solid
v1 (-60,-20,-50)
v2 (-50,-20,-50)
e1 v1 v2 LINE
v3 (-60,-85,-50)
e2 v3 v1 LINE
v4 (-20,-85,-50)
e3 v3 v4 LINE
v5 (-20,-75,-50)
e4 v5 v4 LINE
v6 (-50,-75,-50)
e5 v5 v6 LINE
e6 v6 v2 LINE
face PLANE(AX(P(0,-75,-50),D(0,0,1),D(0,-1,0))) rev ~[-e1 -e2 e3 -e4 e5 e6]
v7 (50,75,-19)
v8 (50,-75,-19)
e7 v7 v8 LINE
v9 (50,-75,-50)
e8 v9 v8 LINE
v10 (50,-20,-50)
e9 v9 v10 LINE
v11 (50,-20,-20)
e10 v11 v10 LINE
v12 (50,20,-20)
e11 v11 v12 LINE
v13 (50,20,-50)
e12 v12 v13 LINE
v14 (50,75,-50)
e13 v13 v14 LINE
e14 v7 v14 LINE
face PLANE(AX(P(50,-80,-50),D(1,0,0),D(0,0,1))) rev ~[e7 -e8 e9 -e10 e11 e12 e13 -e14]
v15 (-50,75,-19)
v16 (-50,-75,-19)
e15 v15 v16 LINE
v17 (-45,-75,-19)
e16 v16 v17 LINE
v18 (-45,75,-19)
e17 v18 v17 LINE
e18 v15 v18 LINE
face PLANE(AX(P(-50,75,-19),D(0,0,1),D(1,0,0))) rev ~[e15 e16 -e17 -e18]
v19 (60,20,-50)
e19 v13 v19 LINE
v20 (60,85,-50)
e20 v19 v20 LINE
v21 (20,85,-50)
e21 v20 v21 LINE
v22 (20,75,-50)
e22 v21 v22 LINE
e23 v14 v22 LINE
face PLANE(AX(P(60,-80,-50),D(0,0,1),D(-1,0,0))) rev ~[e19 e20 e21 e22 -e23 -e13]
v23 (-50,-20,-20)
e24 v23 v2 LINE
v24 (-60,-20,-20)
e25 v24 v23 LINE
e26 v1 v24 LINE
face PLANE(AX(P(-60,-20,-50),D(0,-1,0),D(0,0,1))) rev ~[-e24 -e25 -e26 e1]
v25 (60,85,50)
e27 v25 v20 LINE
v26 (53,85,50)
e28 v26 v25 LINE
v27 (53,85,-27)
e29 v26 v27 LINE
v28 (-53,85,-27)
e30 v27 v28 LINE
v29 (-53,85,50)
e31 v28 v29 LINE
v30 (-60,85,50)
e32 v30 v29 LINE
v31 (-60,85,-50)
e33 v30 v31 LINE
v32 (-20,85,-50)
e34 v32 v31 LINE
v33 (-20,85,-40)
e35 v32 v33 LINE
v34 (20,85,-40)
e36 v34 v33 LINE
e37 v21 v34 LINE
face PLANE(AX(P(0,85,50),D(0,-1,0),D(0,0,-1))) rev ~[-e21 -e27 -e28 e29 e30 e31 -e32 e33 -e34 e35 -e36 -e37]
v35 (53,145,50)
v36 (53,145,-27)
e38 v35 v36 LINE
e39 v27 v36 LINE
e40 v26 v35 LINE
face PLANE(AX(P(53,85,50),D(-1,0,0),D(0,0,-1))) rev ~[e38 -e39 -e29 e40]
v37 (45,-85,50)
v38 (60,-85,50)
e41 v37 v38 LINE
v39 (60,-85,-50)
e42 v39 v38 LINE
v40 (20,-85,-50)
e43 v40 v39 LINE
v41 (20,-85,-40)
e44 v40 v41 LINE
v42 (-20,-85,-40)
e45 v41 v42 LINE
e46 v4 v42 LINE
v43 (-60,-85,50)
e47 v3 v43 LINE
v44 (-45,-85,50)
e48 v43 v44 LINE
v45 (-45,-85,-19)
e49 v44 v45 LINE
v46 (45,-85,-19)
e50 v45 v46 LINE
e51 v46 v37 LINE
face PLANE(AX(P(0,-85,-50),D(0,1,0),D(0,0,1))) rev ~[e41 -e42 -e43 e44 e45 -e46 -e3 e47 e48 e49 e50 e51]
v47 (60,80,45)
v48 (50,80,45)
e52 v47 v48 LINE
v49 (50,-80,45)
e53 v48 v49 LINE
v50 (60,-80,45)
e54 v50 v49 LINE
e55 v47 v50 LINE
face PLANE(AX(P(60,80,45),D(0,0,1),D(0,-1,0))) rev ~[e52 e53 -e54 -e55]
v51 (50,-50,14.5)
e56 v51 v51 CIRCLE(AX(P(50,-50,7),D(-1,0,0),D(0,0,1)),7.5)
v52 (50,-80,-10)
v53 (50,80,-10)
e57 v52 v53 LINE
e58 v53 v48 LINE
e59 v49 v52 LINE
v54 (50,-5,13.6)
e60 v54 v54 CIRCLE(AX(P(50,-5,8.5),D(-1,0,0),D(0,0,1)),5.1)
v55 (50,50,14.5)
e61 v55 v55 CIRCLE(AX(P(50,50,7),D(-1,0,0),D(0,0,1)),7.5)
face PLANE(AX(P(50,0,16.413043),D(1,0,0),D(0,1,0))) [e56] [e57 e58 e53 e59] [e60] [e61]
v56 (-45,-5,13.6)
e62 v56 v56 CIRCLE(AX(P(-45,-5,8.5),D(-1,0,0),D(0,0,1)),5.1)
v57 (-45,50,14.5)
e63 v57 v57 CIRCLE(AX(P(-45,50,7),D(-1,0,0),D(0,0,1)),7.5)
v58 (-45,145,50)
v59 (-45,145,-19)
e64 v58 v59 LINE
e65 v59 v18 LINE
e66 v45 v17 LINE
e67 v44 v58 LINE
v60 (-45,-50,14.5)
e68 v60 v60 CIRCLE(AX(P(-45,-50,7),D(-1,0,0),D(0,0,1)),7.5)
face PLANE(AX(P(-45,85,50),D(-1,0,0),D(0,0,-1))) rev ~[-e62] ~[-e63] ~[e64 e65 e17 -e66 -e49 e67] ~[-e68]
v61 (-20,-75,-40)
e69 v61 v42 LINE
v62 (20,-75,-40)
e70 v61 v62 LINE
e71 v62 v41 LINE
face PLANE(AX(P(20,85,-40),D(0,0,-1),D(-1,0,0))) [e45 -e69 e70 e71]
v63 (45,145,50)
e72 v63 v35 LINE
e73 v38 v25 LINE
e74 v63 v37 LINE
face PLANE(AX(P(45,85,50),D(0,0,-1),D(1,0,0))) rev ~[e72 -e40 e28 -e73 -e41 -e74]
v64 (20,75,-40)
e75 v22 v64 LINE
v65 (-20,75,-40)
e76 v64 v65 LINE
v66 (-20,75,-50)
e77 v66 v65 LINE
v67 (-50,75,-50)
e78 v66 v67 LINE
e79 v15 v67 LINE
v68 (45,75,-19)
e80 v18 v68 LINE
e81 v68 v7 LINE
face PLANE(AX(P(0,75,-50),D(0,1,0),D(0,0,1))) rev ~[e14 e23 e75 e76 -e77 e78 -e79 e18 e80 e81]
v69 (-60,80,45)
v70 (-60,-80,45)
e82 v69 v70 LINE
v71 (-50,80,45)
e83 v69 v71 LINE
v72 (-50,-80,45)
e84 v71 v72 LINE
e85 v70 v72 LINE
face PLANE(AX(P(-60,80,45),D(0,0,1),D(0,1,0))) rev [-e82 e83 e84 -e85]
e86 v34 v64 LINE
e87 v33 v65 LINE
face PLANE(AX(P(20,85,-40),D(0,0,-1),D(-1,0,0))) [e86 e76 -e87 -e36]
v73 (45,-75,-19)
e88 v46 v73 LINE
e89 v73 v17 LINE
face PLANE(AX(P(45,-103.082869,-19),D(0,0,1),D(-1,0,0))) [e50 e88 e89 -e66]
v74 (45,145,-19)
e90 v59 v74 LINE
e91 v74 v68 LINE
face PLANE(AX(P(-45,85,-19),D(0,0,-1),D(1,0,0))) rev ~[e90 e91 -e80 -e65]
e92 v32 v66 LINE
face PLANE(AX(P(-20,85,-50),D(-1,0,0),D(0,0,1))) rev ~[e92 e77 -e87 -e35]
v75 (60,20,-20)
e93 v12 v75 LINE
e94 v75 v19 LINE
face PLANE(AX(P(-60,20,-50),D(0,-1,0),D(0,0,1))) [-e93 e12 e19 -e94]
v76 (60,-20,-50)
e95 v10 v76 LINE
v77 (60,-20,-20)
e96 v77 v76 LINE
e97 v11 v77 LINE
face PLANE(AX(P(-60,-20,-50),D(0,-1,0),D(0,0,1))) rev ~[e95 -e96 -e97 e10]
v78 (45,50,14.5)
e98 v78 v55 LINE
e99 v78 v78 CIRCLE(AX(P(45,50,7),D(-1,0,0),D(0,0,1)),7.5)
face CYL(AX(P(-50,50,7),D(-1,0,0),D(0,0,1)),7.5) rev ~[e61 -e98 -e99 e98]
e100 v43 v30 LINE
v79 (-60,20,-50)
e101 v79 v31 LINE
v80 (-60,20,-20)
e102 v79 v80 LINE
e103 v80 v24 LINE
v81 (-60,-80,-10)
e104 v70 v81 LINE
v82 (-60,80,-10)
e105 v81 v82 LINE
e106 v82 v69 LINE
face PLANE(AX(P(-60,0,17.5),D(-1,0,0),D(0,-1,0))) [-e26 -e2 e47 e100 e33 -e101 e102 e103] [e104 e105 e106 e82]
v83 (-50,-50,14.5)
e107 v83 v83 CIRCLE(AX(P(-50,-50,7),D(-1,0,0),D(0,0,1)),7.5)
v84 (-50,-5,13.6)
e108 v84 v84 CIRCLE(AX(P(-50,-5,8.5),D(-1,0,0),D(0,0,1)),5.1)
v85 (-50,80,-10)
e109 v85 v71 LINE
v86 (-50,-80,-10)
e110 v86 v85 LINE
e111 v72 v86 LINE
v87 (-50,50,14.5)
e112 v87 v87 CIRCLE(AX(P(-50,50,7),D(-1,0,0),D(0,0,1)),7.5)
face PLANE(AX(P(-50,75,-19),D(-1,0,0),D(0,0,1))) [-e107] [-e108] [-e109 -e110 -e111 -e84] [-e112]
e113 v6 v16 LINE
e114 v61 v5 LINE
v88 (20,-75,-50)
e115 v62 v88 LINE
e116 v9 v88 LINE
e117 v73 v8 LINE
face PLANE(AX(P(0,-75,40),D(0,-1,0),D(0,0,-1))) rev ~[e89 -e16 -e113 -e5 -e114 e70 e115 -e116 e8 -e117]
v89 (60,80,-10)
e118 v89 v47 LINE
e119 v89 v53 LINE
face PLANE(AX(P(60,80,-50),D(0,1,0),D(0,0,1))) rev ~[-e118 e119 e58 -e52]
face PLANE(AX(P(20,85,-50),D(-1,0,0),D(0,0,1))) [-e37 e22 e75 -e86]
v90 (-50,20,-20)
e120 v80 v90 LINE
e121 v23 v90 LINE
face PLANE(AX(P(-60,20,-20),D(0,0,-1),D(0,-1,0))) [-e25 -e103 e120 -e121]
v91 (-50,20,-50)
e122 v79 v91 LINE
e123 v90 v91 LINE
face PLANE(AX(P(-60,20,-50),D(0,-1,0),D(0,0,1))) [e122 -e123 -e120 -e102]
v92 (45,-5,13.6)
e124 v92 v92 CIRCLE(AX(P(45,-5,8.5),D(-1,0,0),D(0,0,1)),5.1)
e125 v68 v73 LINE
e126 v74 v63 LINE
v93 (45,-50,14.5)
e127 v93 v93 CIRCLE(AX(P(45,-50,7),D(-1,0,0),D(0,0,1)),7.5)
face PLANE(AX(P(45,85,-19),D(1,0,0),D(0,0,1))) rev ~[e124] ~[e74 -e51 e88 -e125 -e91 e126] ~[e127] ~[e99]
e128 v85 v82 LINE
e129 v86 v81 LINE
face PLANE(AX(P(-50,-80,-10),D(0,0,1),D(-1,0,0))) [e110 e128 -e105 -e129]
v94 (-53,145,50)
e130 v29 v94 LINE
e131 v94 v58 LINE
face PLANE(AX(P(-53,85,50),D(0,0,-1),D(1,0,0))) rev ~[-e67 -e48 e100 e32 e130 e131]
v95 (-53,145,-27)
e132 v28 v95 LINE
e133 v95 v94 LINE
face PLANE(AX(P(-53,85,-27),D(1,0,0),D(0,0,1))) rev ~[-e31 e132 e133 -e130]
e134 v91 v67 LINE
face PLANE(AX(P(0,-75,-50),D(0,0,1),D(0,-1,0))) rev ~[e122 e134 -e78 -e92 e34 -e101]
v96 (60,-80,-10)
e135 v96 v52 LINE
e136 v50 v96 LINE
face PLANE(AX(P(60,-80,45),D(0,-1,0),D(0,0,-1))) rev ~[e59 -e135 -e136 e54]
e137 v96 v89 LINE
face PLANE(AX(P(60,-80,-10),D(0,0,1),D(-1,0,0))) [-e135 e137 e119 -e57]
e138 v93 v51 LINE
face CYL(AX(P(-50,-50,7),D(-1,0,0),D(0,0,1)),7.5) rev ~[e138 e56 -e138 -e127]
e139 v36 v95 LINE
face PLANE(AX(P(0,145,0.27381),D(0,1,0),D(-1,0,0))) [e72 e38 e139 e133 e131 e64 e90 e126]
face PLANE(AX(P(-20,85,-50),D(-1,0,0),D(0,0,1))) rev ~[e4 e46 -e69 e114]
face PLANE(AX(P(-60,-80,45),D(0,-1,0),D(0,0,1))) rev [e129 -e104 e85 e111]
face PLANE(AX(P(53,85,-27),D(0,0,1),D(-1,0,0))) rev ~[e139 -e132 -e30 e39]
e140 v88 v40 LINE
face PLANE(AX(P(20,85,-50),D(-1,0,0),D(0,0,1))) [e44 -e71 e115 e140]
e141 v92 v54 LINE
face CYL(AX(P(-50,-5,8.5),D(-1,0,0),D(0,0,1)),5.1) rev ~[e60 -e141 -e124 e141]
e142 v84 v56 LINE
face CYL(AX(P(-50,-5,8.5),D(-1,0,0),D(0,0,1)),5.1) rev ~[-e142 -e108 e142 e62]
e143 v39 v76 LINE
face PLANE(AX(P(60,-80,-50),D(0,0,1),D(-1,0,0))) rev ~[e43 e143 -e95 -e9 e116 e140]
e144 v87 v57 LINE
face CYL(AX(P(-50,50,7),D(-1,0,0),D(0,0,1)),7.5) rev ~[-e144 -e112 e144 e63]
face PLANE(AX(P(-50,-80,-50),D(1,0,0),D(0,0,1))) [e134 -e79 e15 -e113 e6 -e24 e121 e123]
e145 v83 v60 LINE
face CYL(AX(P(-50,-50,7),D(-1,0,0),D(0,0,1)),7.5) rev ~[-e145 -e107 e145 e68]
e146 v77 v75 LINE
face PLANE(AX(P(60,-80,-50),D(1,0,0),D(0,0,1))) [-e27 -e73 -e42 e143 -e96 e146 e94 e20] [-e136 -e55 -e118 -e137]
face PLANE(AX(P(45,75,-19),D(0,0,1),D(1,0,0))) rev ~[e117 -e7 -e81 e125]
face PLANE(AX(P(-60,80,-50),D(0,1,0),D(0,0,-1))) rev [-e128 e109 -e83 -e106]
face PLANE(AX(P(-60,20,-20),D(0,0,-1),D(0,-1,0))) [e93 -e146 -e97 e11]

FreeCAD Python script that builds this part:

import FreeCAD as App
import Part
import Sketcher
Q = App.Units.Quantity


def add_polygon(sketch, points):
    """Adds a closed chain of lines whose ends are joined by coincident constraints."""
    first, n = sketch.GeometryCount, len(points)
    for a, b in zip(points, points[1:] + points[:1]):
        sketch.addGeometry(Part.LineSegment(App.Vector(*a, 0), App.Vector(*b, 0)), False)
    for i in range(n):
        sketch.addConstraint(Sketcher.Constraint("Coincident", first + i, 2, first + (i + 1) % n, 1))

doc = App.newDocument("Part")
body = doc.addObject("PartDesign::Body", "Body")

# Sketch on YZ plane
sketch1 = doc.addObject("Sketcher::SketchObject", "Sketch")
body.addObject(sketch1)
sketch1.AttachmentSupport = (doc.YZ_Plane, [""])
sketch1.MapMode = "FlatFace"
add_polygon(sketch1, [(85, -50), (85, 50), (-85, 50), (-85, -50), (-75, -50), (-75, 40), (75, 40), (75, -50)])  # lines 0-7
sketch1.addConstraint([
    Sketcher.Constraint("Vertical", 0),
    Sketcher.Constraint("Horizontal", 1),
    Sketcher.Constraint("Vertical", 2),
    Sketcher.Constraint("Horizontal", 3),
    Sketcher.Constraint("Vertical", 4),
    Sketcher.Constraint("Horizontal", 5),
    Sketcher.Constraint("Vertical", 6),
    Sketcher.Constraint("Horizontal", 7),
    Sketcher.Constraint("Symmetric", 0, 2, 2, 2, -1, 1),
    Sketcher.Constraint("Symmetric", 3, 2, 6, 2, -2),
    Sketcher.Constraint("DistanceX", 1, 2, 1, 1, Q("170 mm")),
    Sketcher.Constraint("DistanceX", 3, 1, 3, 2, Q("10 mm")),
    Sketcher.Constraint("DistanceY", 0, 1, 0, 2, Q("100 mm")),
    Sketcher.Constraint("DistanceY", 4, 1, 4, 2, Q("90 mm")),
])
pad1 = doc.addObject("PartDesign::Pad", "Pad")
body.addObject(pad1)
pad1.Profile = sketch1
pad1.Length = 120
pad1.Midplane = True

# Sketch on YZ plane
sketch2 = doc.addObject("Sketcher::SketchObject", "Sketch001")
body.addObject(sketch2)
sketch2.AttachmentSupport = (doc.YZ_Plane, [""])
sketch2.MapMode = "FlatFace"
sketch2.AttachmentOffset = App.Placement(App.Vector(0, 0, 60), App.Rotation())
add_polygon(sketch2, [(-80, 45), (-80, -50), (-75, -50), (-75, 40), (75, 40), (75, -50), (80, -50), (80, 45)])  # lines 0-7
sketch2.addConstraint([
    Sketcher.Constraint("Vertical", 0),
    Sketcher.Constraint("Horizontal", 1),
    Sketcher.Constraint("Vertical", 2),
    Sketcher.Constraint("Horizontal", 3),
    Sketcher.Constraint("Vertical", 4),
    Sketcher.Constraint("Horizontal", 5),
    Sketcher.Constraint("Vertical", 6),
    Sketcher.Constraint("Horizontal", 7),
    Sketcher.Constraint("Symmetric", 1, 2, 4, 2, -2),
    Sketcher.Constraint("Equal", 1, 5),
    Sketcher.Constraint("DistanceX", 1, 1, 1, 2, Q("5 mm")),
    Sketcher.Constraint("DistanceX", 3, 1, 3, 2, Q("150 mm")),
    Sketcher.Constraint("DistanceY", 0, 2, 0, 1, Q("95 mm")),
    Sketcher.Constraint("DistanceY", 2, 1, 2, 2, Q("90 mm")),
    Sketcher.Constraint("DistanceY", 0, 2, -1, 1, Q("50 mm")),
])
pocket1 = doc.addObject("PartDesign::Pocket", "Pocket")
body.addObject(pocket1)
pocket1.Profile = sketch2
pocket1.Length = 10
doc.recompute()

mirrored = doc.addObject("PartDesign::Mirrored", "Mirrored")
body.addObject(mirrored)
mirrored.Originals = [pocket1]
mirrored.MirrorPlane = (doc.YZ_Plane, [""])
body.Tip = mirrored

# Sketch on XY plane
sketch3 = doc.addObject("Sketcher::SketchObject", "Sketch002")
body.addObject(sketch3)
sketch3.AttachmentSupport = (doc.XY_Plane, [""])
sketch3.MapMode = "FlatFace"
sketch3.AttachmentOffset = App.Placement(App.Vector(0, 0, 50), App.Rotation())
sketch3.addGeometry([
    Part.Circle(App.Vector(-35, 0, 0), App.Vector(0, 0, 1), 1.5),
    Part.Circle(App.Vector(35, 0, 0), App.Vector(0, 0, 1), 1.5),
    Part.Circle(App.Vector(-35, 60, 0), App.Vector(0, 0, 1), 1.5),
    Part.Circle(App.Vector(35, 60, 0), App.Vector(0, 0, 1), 1.5),
], False)
sketch3.addConstraint([
    Sketcher.Constraint("Equal", 0, 1),
    Sketcher.Constraint("Equal", 1, 2),
    Sketcher.Constraint("Equal", 2, 3),
    Sketcher.Constraint("Symmetric", 0, 3, 1, 3, -1, 1),
    Sketcher.Constraint("Symmetric", 2, 3, 3, 3, -2),
    Sketcher.Constraint("PointOnObject", 0, 3, -1),
    Sketcher.Constraint("Vertical", 0, 3, 2, 3),
    Sketcher.Constraint("Diameter", 0, Q("3 mm")),
    Sketcher.Constraint("DistanceX", 0, 3, -1, 1, Q("35 mm")),
    Sketcher.Constraint("DistanceY", -1, 1, 2, 3, Q("60 mm")),
])
pocket2 = doc.addObject("PartDesign::Pocket", "Pocket001")
body.addObject(pocket2)
pocket2.Profile = sketch3
pocket2.Type = "ThroughAll"

# Sketch on XZ plane
sketch4 = doc.addObject("Sketcher::SketchObject", "Sketch003")
body.addObject(sketch4)
sketch4.AttachmentSupport = (doc.XZ_Plane, [""])
sketch4.MapMode = "FlatFace"
sketch4.AttachmentOffset = App.Placement(App.Vector(0, 0, -85), App.Rotation())
add_polygon(sketch4, [(-45, 50), (45, 50), (45, -19), (-45, -19)])  # lines 0-3
sketch4.addConstraint([
    Sketcher.Constraint("Horizontal", 0),
    Sketcher.Constraint("Vertical", 1),
    Sketcher.Constraint("Horizontal", 2),
    Sketcher.Constraint("Vertical", 3),
    Sketcher.Constraint("DistanceX", 0, 1, 0, 2, Q("90 mm")),
    Sketcher.Constraint("DistanceY", 1, 2, 1, 1, Q("69 mm")),
    Sketcher.Constraint("DistanceX", -1, 1, 0, 2, Q("45 mm")),
    Sketcher.Constraint("DistanceY", -1, 1, 0, 2, Q("50 mm")),
])
pocket3 = doc.addObject("PartDesign::Pocket", "Pocket002")
body.addObject(pocket3)
pocket3.Profile = sketch4
pocket3.Type = "ThroughAll"
pocket3.Midplane = True

# Sketch on XZ plane
sketch5 = doc.addObject("Sketcher::SketchObject", "Sketch004")
body.addObject(sketch5)
sketch5.AttachmentSupport = (doc.XZ_Plane, [""])
sketch5.MapMode = "FlatFace"
sketch5.AttachmentOffset = App.Placement(App.Vector(0, 0, -75), App.Rotation())
add_polygon(sketch5, [(-50, 40), (-50, -19), (-45, -19), (-45, 40)])  # lines 0-3
add_polygon(sketch5, [(45, 40), (45, -19), (50, -19), (50, 40)])  # lines 4-7
sketch5.addConstraint([
    Sketcher.Constraint("Vertical", 0),
    Sketcher.Constraint("Horizontal", 1),
    Sketcher.Constraint("Vertical", 2),
    Sketcher.Constraint("Horizontal", 3),
    Sketcher.Constraint("Vertical", 4),
    Sketcher.Constraint("Horizontal", 5),
    Sketcher.Constraint("Vertical", 6),
    Sketcher.Constraint("Horizontal", 7),
    Sketcher.Constraint("Symmetric", 1, 2, 4, 2, -2),
    Sketcher.Constraint("Symmetric", 3, 2, 6, 2, -2),
    Sketcher.Constraint("DistanceX", 1, 1, 1, 2, Q("5 mm")),
    Sketcher.Constraint("DistanceY", 0, 2, 0, 1, Q("59 mm")),
    Sketcher.Constraint("DistanceX", 0, 2, -1, 1, Q("50 mm")),
    Sketcher.Constraint("DistanceY", 0, 2, -1, 1, Q("19 mm")),
])
pad2 = doc.addObject("PartDesign::Pad", "Pad001")
body.addObject(pad2)
pad2.Profile = sketch5
pad2.Length = 150

# Sketch on YZ plane
sketch6 = doc.addObject("Sketcher::SketchObject", "Sketch005")
body.addObject(sketch6)
sketch6.AttachmentSupport = (doc.YZ_Plane, [""])
sketch6.MapMode = "FlatFace"
sketch6.AttachmentOffset = App.Placement(App.Vector(0, 0, -50), App.Rotation())
sketch6.addGeometry([
    Part.Circle(App.Vector(50, 7, 0), App.Vector(0, 0, 1), 8),
    Part.Circle(App.Vector(-5, 8, 0), App.Vector(0, 0, 1), 5),
    Part.Circle(App.Vector(-50, 7, 0), App.Vector(0, 0, 1), 8),
], False)
sketch6.addConstraint([
    Sketcher.Constraint("Equal", 0, 2),
    Sketcher.Constraint("Symmetric", 0, 3, 2, 3, -2),
    Sketcher.Constraint("Diameter", 0, Q("15 mm")),
    Sketcher.Constraint("Diameter", 1, Q("10.2 mm")),
    Sketcher.Constraint("DistanceX", -1, 1, 0, 3, Q("50 mm")),
    Sketcher.Constraint("DistanceY", -1, 1, 0, 3, Q("7 mm")),
    Sketcher.Constraint("DistanceX", 1, 3, -1, 1, Q("5 mm")),
    Sketcher.Constraint("DistanceY", -1, 1, 1, 3, Q("8.5 mm")),
])
pocket4 = doc.addObject("PartDesign::Pocket", "Pocket003")
body.addObject(pocket4)
pocket4.Profile = sketch6
pocket4.Type = "ThroughAll"
pocket4.Reversed = True

# Sketch on XZ plane
sketch7 = doc.addObject("Sketcher::SketchObject", "Sketch006")
body.addObject(sketch7)
sketch7.AttachmentSupport = (doc.XZ_Plane, [""])
sketch7.MapMode = "FlatFace"
sketch7.AttachmentOffset = App.Placement(App.Vector(0, 0, -85), App.Rotation())
add_polygon(sketch7, [(20, -40), (20, -50), (-20, -50), (-20, -40)])  # lines 0-3
sketch7.addConstraint([
    Sketcher.Constraint("Vertical", 0),
    Sketcher.Constraint("Horizontal", 1),
    Sketcher.Constraint("Vertical", 2),
    Sketcher.Constraint("Horizontal", 3),
    Sketcher.Constraint("DistanceX", 1, 2, 1, 1, Q("40 mm")),
    Sketcher.Constraint("DistanceY", 0, 2, 0, 1, Q("10 mm")),
    Sketcher.Constraint("DistanceX", -1, 1, 0, 2, Q("20 mm")),
    Sketcher.Constraint("DistanceY", 0, 2, -1, 1, Q("50 mm")),
])
pocket5 = doc.addObject("PartDesign::Pocket", "Pocket004")
body.addObject(pocket5)
pocket5.Profile = sketch7
pocket5.Type = "ThroughAll"
pocket5.Reversed = True

# Sketch on XZ plane
sketch8 = doc.addObject("Sketcher::SketchObject", "Sketch007")
body.addObject(sketch8)
sketch8.AttachmentSupport = (doc.XZ_Plane, [""])
sketch8.MapMode = "FlatFace"
sketch8.AttachmentOffset = App.Placement(App.Vector(0, 0, 80), App.Rotation())
add_polygon(sketch8, [(60, -10), (60, -50), (50, -50), (50, -10)])  # lines 0-3
add_polygon(sketch8, [(-50, -10), (-50, -50), (-60, -50), (-60, -10)])  # lines 4-7
sketch8.addConstraint([
    Sketcher.Constraint("Vertical", 0),
    Sketcher.Constraint("Horizontal", 1),
    Sketcher.Constraint("Vertical", 2),
    Sketcher.Constraint("Horizontal", 3),
    Sketcher.Constraint("Vertical", 4),
    Sketcher.Constraint("Horizontal", 5),
    Sketcher.Constraint("Vertical", 6),
    Sketcher.Constraint("Horizontal", 7),
    Sketcher.Constraint("Symmetric", 1, 2, 4, 2, -2),
    Sketcher.Constraint("Symmetric", 3, 2, 6, 2, -2),
    Sketcher.Constraint("DistanceX", 1, 2, 1, 1, Q("10 mm")),
    Sketcher.Constraint("DistanceY", 0, 2, 0, 1, Q("40 mm")),
    Sketcher.Constraint("DistanceX", -1, 1, 0, 2, Q("60 mm")),
    Sketcher.Constraint("DistanceY", 0, 2, -1, 1, Q("50 mm")),
])
pad3 = doc.addObject("PartDesign::Pad", "Pad002")
body.addObject(pad3)
pad3.Profile = sketch8
pad3.Length = 160
pad3.Reversed = True

# Sketch on YZ plane
sketch9 = doc.addObject("Sketcher::SketchObject", "Sketch008")
body.addObject(sketch9)
sketch9.AttachmentSupport = (doc.YZ_Plane, [""])
sketch9.MapMode = "FlatFace"
sketch9.AttachmentOffset = App.Placement(App.Vector(0, 0, -60), App.Rotation())
add_polygon(sketch9, [(20, -20), (20, -50), (-20, -50), (-20, -20)])  # lines 0-3
sketch9.addConstraint([
    Sketcher.Constraint("Vertical", 0),
    Sketcher.Constraint("Horizontal", 1),
    Sketcher.Constraint("Vertical", 2),
    Sketcher.Constraint("Horizontal", 3),
    Sketcher.Constraint("DistanceX", 1, 2, 1, 1, Q("40 mm")),
    Sketcher.Constraint("DistanceY", 0, 2, 0, 1, Q("30 mm")),
    Sketcher.Constraint("DistanceX", -1, 1, 0, 2, Q("20 mm")),
    Sketcher.Constraint("DistanceY", 0, 2, -1, 1, Q("50 mm")),
])
pocket6 = doc.addObject("PartDesign::Pocket", "Pocket005")
body.addObject(pocket6)
pocket6.Profile = sketch9
pocket6.Type = "ThroughAll"
pocket6.Reversed = True

# Sketch on XZ plane
sketch10 = doc.addObject("Sketcher::SketchObject", "Sketch009")
body.addObject(sketch10)
sketch10.AttachmentSupport = (doc.XZ_Plane, [""])
sketch10.MapMode = "FlatFace"
sketch10.AttachmentOffset = App.Placement(App.Vector(0, 0, -85), App.Rotation())
add_polygon(sketch10, [(45, 50), (53, 50), (53, -27), (-53, -27), (-53, 50), (-45, 50), (-45, -19), (45, -19)])  # lines 0-7
sketch10.addConstraint([
    Sketcher.Constraint("Horizontal", 0),
    Sketcher.Constraint("Vertical", 1),
    Sketcher.Constraint("Horizontal", 2),
    Sketcher.Constraint("Vertical", 3),
    Sketcher.Constraint("Horizontal", 4),
    Sketcher.Constraint("Vertical", 5),
    Sketcher.Constraint("Horizontal", 6),
    Sketcher.Constraint("Vertical", 7),
    Sketcher.Constraint("Symmetric", 0, 2, 3, 2, -2),
    Sketcher.Constraint("Equal", 0, 4),
    Sketcher.Constraint("DistanceX", 0, 1, 0, 2, Q("8 mm")),
    Sketcher.Constraint("DistanceX", 2, 2, 2, 1, Q("106 mm")),
    Sketcher.Constraint("DistanceY", 1, 2, 1, 1, Q("77 mm")),
    Sketcher.Constraint("DistanceY", 5, 2, 5, 1, Q("69 mm")),
    Sketcher.Constraint("DistanceY", -1, 1, 0, 2, Q("50 mm")),
])
pad4 = doc.addObject("PartDesign::Pad", "Pad003")
body.addObject(pad4)
pad4.Profile = sketch10
pad4.Length = 60
pad4.Reversed = True

doc.recompute()
